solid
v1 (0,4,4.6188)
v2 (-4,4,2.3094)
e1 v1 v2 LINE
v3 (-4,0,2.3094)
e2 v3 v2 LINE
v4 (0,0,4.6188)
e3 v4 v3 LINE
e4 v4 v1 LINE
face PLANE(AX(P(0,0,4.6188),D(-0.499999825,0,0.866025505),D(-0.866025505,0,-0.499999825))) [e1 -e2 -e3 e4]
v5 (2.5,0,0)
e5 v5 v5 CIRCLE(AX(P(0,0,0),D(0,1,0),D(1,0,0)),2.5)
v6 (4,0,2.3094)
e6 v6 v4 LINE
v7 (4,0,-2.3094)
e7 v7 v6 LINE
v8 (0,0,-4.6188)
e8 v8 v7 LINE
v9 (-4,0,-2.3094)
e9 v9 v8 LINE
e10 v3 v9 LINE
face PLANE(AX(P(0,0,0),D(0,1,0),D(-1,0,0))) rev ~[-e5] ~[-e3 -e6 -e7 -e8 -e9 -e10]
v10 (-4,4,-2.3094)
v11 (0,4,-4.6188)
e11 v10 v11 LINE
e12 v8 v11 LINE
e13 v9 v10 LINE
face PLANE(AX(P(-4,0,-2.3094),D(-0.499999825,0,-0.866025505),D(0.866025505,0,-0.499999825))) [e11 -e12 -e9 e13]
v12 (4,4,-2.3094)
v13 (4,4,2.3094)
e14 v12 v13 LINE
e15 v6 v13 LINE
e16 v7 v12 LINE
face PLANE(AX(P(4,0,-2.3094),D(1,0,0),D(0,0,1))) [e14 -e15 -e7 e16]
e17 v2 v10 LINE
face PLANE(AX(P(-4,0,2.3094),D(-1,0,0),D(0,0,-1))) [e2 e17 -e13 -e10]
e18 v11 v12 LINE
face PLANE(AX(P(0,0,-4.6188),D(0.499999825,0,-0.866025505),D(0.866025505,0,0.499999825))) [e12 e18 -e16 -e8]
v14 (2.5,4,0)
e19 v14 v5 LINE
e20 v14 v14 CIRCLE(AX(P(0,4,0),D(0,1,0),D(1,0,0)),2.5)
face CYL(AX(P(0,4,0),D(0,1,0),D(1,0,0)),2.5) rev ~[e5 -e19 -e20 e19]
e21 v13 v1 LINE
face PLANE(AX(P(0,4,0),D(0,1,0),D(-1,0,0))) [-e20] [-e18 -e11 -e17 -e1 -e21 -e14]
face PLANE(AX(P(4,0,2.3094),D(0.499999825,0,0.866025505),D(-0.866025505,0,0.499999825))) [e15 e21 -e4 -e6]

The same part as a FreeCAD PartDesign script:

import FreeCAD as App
import Part
import Sketcher

V = App.Vector
Q = App.Units.Quantity


def add_polygon(sketch, points):
    """Adds a closed chain of lines whose ends are joined by coincident constraints."""
    first, n = sketch.GeometryCount, len(points)
    for a, b in zip(points, points[1:] + points[:1]):
        sketch.addGeometry(Part.LineSegment(App.Vector(*a, 0), App.Vector(*b, 0)), False)
    for i in range(n):
        sketch.addConstraint(Sketcher.Constraint("Coincident", first + i, 2, first + (i + 1) % n, 1))

doc = App.newDocument("Part")
params = doc.addObject("Spreadsheet::Sheet", "Params")
for row, (alias, value) in enumerate([
    ("pad1_length", "4 mm"),
    ("sketch2_diameter", "5 mm"),
    ("pocket1_length", "4 mm"),
], start=1):
    params.set(f"A{row}", alias)
    params.set(f"B{row}", "=" + value)
    params.setAlias(f"B{row}", alias)

body = doc.addObject("PartDesign::Body", "Body")

sketch1 = doc.addObject("Sketcher::SketchObject", "Sketch")
body.addObject(sketch1)
sketch1.AttachmentSupport = (doc.XZ_Plane, [""])
sketch1.MapMode = "FlatFace"
add_polygon(sketch1, [(-4, 2.3), (0, 4.6), (4, 2.3), (4, -2.3), (0, -4.6), (-4, -2.3)])
sketch1.addConstraint([
    Sketcher.Constraint("Vertical", 2),
    Sketcher.Constraint("Vertical", 5),
    Sketcher.Constraint("Symmetric", 0, 2, 3, 2, -1, 1),
    Sketcher.Constraint("Symmetric", 1, 2, 4, 2, -1, 1),
    Sketcher.Constraint("PointOnObject", 0, 2, -2),
    Sketcher.Constraint("Parallel", 0, 3),
    Sketcher.Constraint("Horizontal", 2, 2, 4, 2),
    Sketcher.Constraint("DistanceX", -1, 1, 1, 2, 4.0),
    Sketcher.Constraint("Angle", 0, Q("30 deg")),
    Sketcher.Constraint("DistanceY", 2, 2, 2, 1, 4.6188),
])
pad1 = doc.addObject("PartDesign::Pad", "Pad")
body.addObject(pad1)
pad1.Profile = sketch1
pad1.setExpression("Length", "Params.pad1_length")
pad1.Reversed = True

sketch2 = doc.addObject("Sketcher::SketchObject", "Sketch001")
body.addObject(sketch2)
sketch2.AttachmentSupport = (doc.XZ_Plane, [""])
sketch2.MapMode = "FlatFace"
sketch2.AttachmentOffset = App.Placement(V(0, 0, -4), App.Rotation())
sketch2.addGeometry(Part.Circle(V(0, 0, 0), V(0, 0, 1), 2.5), False)
sketch2.addConstraint([
    Sketcher.Constraint("Coincident", 0, 3, -1, 1),
    Sketcher.Constraint("Diameter", 0, 5.0),
])
sketch2.setExpression("Constraints[1]", "Params.sketch2_diameter")
pocket1 = doc.addObject("PartDesign::Pocket", "Pocket")
body.addObject(pocket1)
pocket1.Profile = sketch2
pocket1.setExpression("Length", "Params.pocket1_length")
pocket1.Reversed = True

doc.recompute()
